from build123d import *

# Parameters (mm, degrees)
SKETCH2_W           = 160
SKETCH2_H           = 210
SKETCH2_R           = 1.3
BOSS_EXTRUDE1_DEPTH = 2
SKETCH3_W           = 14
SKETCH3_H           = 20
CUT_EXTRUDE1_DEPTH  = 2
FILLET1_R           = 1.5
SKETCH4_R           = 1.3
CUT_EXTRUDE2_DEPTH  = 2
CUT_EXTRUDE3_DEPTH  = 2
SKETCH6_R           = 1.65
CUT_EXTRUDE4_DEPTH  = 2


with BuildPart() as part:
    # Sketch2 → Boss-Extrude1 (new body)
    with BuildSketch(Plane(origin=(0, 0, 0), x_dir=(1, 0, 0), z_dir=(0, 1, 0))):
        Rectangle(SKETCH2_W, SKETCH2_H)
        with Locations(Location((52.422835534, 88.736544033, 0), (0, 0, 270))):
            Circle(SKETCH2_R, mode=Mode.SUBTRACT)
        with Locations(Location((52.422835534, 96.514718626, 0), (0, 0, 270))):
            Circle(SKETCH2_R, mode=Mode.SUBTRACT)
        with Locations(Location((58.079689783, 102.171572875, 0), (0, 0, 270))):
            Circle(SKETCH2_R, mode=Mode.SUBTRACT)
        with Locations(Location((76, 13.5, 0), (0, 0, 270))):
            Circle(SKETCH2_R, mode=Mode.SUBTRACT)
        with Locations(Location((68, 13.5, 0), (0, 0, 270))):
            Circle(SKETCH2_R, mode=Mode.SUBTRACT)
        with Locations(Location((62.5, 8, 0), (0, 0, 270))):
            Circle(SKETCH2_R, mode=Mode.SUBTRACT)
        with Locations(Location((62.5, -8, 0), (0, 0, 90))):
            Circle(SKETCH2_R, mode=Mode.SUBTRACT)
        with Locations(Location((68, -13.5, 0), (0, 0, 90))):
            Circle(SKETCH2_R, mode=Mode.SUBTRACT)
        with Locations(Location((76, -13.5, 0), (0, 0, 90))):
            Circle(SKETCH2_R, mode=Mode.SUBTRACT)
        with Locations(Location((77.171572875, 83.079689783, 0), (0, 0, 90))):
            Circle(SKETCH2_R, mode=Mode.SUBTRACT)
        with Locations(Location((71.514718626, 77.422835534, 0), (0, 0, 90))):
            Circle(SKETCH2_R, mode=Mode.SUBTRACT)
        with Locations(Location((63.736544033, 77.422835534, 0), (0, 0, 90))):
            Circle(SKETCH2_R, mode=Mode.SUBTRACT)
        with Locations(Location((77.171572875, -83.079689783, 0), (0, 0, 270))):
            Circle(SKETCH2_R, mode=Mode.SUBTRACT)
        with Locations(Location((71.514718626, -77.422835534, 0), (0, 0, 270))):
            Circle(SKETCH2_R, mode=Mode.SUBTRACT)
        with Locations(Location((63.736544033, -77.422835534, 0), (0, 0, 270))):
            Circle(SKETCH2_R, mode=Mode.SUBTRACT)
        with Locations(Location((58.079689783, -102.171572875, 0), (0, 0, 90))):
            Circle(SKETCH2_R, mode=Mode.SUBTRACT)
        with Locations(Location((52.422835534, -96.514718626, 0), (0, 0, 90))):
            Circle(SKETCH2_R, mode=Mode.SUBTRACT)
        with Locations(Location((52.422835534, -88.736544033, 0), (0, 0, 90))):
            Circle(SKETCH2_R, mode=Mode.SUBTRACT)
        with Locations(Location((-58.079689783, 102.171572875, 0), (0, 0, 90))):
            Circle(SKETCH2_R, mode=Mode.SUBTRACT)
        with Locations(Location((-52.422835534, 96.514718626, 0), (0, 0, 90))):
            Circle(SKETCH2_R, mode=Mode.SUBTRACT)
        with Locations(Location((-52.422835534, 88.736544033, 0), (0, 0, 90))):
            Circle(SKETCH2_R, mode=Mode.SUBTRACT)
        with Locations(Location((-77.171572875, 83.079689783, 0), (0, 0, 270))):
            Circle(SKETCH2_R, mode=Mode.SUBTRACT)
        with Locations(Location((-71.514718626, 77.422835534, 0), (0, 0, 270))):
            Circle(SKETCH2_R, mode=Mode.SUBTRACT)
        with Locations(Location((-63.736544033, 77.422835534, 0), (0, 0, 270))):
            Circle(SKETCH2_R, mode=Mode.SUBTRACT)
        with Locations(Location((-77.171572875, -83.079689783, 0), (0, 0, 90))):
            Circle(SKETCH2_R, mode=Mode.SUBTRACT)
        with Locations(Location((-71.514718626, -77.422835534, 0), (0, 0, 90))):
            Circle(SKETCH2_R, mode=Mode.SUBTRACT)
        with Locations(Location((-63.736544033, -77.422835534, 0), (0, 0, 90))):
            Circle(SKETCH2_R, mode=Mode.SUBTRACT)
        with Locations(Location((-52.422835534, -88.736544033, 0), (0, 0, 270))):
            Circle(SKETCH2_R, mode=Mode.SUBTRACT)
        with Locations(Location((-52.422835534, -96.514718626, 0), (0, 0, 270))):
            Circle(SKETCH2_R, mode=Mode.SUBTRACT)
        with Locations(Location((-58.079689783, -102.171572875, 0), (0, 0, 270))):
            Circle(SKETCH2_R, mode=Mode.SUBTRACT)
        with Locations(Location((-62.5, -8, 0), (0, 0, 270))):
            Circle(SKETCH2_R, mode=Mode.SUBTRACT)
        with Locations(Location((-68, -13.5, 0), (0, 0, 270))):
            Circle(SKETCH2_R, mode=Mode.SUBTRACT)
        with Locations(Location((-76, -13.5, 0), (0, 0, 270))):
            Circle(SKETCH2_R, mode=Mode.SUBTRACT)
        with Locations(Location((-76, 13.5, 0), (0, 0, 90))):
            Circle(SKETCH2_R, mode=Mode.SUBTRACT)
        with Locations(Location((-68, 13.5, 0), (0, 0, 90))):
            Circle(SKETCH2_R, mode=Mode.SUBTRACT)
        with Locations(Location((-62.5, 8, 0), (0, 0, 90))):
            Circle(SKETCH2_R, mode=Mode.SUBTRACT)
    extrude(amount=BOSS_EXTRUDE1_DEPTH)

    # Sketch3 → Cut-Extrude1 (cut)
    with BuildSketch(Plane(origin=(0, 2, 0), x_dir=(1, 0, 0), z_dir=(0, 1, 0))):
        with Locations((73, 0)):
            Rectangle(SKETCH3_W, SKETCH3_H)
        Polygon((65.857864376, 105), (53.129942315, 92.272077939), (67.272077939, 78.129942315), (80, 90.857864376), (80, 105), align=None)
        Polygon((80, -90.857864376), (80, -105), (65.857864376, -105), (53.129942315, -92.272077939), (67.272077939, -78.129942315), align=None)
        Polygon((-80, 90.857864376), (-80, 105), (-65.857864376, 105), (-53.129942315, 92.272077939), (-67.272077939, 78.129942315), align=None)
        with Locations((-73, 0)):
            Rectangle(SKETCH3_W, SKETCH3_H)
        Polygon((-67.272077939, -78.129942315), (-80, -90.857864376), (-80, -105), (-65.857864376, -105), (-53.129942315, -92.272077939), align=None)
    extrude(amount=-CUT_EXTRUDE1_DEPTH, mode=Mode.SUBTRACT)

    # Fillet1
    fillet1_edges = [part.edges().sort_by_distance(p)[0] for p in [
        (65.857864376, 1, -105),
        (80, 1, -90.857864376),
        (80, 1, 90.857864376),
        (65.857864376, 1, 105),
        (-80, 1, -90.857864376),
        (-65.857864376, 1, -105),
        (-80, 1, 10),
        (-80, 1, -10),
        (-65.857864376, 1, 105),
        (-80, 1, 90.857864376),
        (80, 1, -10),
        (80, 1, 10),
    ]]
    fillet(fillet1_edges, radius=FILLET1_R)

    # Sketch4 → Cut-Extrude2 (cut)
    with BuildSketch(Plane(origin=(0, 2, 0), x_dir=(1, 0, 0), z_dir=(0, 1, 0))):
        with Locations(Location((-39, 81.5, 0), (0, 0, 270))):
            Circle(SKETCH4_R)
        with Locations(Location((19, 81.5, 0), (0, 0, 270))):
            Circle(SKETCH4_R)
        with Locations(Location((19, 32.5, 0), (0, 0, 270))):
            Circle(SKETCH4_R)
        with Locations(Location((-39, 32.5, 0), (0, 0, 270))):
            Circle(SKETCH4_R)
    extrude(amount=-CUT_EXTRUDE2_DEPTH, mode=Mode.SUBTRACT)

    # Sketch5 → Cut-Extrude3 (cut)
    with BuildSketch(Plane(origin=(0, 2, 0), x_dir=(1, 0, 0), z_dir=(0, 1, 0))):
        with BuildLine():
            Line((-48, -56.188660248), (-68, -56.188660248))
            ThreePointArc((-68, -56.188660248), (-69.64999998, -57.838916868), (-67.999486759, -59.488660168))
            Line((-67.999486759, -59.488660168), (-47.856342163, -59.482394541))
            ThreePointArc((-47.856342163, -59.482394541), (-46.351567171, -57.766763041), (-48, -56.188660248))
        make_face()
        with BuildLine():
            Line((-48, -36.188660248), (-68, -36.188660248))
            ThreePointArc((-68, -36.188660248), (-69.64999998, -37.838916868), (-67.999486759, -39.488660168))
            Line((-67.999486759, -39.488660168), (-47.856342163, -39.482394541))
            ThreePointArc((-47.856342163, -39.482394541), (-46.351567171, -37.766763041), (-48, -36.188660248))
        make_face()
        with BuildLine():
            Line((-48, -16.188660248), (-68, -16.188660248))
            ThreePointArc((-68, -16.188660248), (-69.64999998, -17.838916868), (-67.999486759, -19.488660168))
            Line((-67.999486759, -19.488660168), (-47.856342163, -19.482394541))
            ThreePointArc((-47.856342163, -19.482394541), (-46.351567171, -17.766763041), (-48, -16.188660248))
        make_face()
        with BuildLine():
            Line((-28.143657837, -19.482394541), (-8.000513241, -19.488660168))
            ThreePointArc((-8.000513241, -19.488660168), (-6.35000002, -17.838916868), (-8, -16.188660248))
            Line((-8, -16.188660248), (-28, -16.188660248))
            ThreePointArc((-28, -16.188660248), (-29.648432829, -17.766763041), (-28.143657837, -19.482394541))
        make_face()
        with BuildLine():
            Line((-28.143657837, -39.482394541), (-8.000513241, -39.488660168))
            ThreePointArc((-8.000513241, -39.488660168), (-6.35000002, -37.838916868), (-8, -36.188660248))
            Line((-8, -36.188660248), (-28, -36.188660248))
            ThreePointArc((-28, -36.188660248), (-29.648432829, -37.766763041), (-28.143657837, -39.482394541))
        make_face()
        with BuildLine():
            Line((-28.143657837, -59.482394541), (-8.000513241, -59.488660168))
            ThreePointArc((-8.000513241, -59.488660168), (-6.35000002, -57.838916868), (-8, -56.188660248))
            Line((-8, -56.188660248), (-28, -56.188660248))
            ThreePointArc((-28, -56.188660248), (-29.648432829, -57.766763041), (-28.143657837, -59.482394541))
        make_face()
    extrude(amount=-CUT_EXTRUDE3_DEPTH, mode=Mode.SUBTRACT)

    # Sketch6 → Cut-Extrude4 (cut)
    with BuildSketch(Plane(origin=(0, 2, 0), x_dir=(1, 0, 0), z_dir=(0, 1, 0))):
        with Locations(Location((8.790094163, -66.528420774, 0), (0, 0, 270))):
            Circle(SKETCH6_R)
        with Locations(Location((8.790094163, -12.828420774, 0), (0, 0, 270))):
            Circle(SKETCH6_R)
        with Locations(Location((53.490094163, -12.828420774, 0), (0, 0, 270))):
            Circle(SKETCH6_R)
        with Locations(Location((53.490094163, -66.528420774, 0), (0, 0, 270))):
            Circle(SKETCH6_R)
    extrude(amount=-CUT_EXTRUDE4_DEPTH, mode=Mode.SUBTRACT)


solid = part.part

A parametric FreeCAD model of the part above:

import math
import FreeCAD as App
import Part
import Sketcher


def edges_at(feature, points):
    """Names of the edges that pass closest to the given points."""
    edges = feature.Shape.Edges
    near = lambda p: min(range(len(edges)), key=lambda i: edges[i].distToShape(Part.Vertex(*p))[0])
    return sorted({f"Edge{near(p) + 1}" for p in points})


def add_polygon(sketch, points):
    """Adds a closed chain of lines whose ends are joined by coincident constraints."""
    first, n = sketch.GeometryCount, len(points)
    for a, b in zip(points, points[1:] + points[:1]):
        sketch.addGeometry(Part.LineSegment(App.Vector(*a, 0), App.Vector(*b, 0)), False)
    for i in range(n):
        sketch.addConstraint(Sketcher.Constraint("Coincident", first + i, 2, first + (i + 1) % n, 1))

doc = App.newDocument("Part")
body = doc.addObject("PartDesign::Body", "Body")

sketch1 = body.newObject("Sketcher::SketchObject", "Sketch")
sketch1.AttachmentSupport = (doc.getObject("XZ_Plane"), [""])
sketch1.MapMode = "FlatFace"
add_polygon(sketch1, [(-80, -105), (-80, 105), (80, 105), (80, -105)])
sketch1.addGeometry(Part.Circle(App.Vector(-77.2, 83.1, 0), App.Vector(0, 0, 1), 1.3), False)
sketch1.addGeometry(Part.Circle(App.Vector(-58.1, 102.2, 0), App.Vector(0, 0, 1), 1.3), False)
sketch1.addGeometry(Part.Circle(App.Vector(-52.4, 96.5, 0), App.Vector(0, 0, 1), 1.3), False)
sketch1.addGeometry(Part.Circle(App.Vector(-52.4, 88.7, 0), App.Vector(0, 0, 1), 1.3), False)
sketch1.addGeometry(Part.Circle(App.Vector(-71.5, 77.4, 0), App.Vector(0, 0, 1), 1.3), False)
sketch1.addGeometry(Part.Circle(App.Vector(-63.7, 77.4, 0), App.Vector(0, 0, 1), 1.3), False)
sketch1.addGeometry(Part.Circle(App.Vector(-76, 13.5, 0), App.Vector(0, 0, 1), 1.3), False)
sketch1.addGeometry(Part.Circle(App.Vector(-68, 13.5, 0), App.Vector(0, 0, 1), 1.3), False)
sketch1.addGeometry(Part.Circle(App.Vector(-62.5, 8, 0), App.Vector(0, 0, 1), 1.3), False)
sketch1.addGeometry(Part.Circle(App.Vector(58.1, 102.2, 0), App.Vector(0, 0, 1), 1.3), False)
sketch1.addGeometry(Part.Circle(App.Vector(52.4, 96.5, 0), App.Vector(0, 0, 1), 1.3), False)
sketch1.addGeometry(Part.Circle(App.Vector(52.4, 88.7, 0), App.Vector(0, 0, 1), 1.3), False)
sketch1.addGeometry(Part.Circle(App.Vector(77.2, 83.1, 0), App.Vector(0, 0, 1), 1.3), False)
sketch1.addGeometry(Part.Circle(App.Vector(63.7, 77.4, 0), App.Vector(0, 0, 1), 1.3), False)
sketch1.addGeometry(Part.Circle(App.Vector(71.5, 77.4, 0), App.Vector(0, 0, 1), 1.3), False)
sketch1.addGeometry(Part.Circle(App.Vector(68, 13.5, 0), App.Vector(0, 0, 1), 1.3), False)
sketch1.addGeometry(Part.Circle(App.Vector(76, 13.5, 0), App.Vector(0, 0, 1), 1.3), False)
sketch1.addGeometry(Part.Circle(App.Vector(62.5, 8, 0), App.Vector(0, 0, 1), 1.3), False)
sketch1.addGeometry(Part.Circle(App.Vector(-62.5, -8, 0), App.Vector(0, 0, 1), 1.3), False)
sketch1.addGeometry(Part.Circle(App.Vector(-76, -13.5, 0), App.Vector(0, 0, 1), 1.3), False)
sketch1.addGeometry(Part.Circle(App.Vector(-68, -13.5, 0), App.Vector(0, 0, 1), 1.3), False)
sketch1.addGeometry(Part.Circle(App.Vector(-71.5, -77.4, 0), App.Vector(0, 0, 1), 1.3), False)
sketch1.addGeometry(Part.Circle(App.Vector(-63.7, -77.4, 0), App.Vector(0, 0, 1), 1.3), False)
sketch1.addGeometry(Part.Circle(App.Vector(-77.2, -83.1, 0), App.Vector(0, 0, 1), 1.3), False)
sketch1.addGeometry(Part.Circle(App.Vector(-52.4, -88.7, 0), App.Vector(0, 0, 1), 1.3), False)
sketch1.addGeometry(Part.Circle(App.Vector(-52.4, -96.5, 0), App.Vector(0, 0, 1), 1.3), False)
sketch1.addGeometry(Part.Circle(App.Vector(-58.1, -102.2, 0), App.Vector(0, 0, 1), 1.3), False)
sketch1.addGeometry(Part.Circle(App.Vector(62.5, -8, 0), App.Vector(0, 0, 1), 1.3), False)
sketch1.addGeometry(Part.Circle(App.Vector(68, -13.5, 0), App.Vector(0, 0, 1), 1.3), False)
sketch1.addGeometry(Part.Circle(App.Vector(76, -13.5, 0), App.Vector(0, 0, 1), 1.3), False)
sketch1.addGeometry(Part.Circle(App.Vector(63.7, -77.4, 0), App.Vector(0, 0, 1), 1.3), False)
sketch1.addGeometry(Part.Circle(App.Vector(71.5, -77.4, 0), App.Vector(0, 0, 1), 1.3), False)
sketch1.addGeometry(Part.Circle(App.Vector(52.4, -88.7, 0), App.Vector(0, 0, 1), 1.3), False)
sketch1.addGeometry(Part.Circle(App.Vector(52.4, -96.5, 0), App.Vector(0, 0, 1), 1.3), False)
sketch1.addGeometry(Part.Circle(App.Vector(58.1, -102.2, 0), App.Vector(0, 0, 1), 1.3), False)
sketch1.addGeometry(Part.Circle(App.Vector(77.2, -83.1, 0), App.Vector(0, 0, 1), 1.3), False)
sketch1.addConstraint(Sketcher.Constraint("Vertical", 0))
sketch1.addConstraint(Sketcher.Constraint("Horizontal", 1))
sketch1.addConstraint(Sketcher.Constraint("Vertical", 2))
sketch1.addConstraint(Sketcher.Constraint("Horizontal", 3))
sketch1.addConstraint(Sketcher.Constraint("Equal", 4, 5))
sketch1.addConstraint(Sketcher.Constraint("Equal", 5, 6))
sketch1.addConstraint(Sketcher.Constraint("Equal", 6, 7))
sketch1.addConstraint(Sketcher.Constraint("Equal", 7, 8))
sketch1.addConstraint(Sketcher.Constraint("Equal", 8, 9))
sketch1.addConstraint(Sketcher.Constraint("Equal", 9, 10))
sketch1.addConstraint(Sketcher.Constraint("Equal", 10, 11))
sketch1.addConstraint(Sketcher.Constraint("Equal", 11, 12))
sketch1.addConstraint(Sketcher.Constraint("Equal", 12, 13))
sketch1.addConstraint(Sketcher.Constraint("Equal", 13, 14))
sketch1.addConstraint(Sketcher.Constraint("Equal", 14, 15))
sketch1.addConstraint(Sketcher.Constraint("Equal", 15, 16))
sketch1.addConstraint(Sketcher.Constraint("Equal", 16, 17))
sketch1.addConstraint(Sketcher.Constraint("Equal", 17, 18))
sketch1.addConstraint(Sketcher.Constraint("Equal", 18, 19))
sketch1.addConstraint(Sketcher.Constraint("Equal", 19, 20))
sketch1.addConstraint(Sketcher.Constraint("Equal", 20, 21))
sketch1.addConstraint(Sketcher.Constraint("Equal", 21, 22))
sketch1.addConstraint(Sketcher.Constraint("Equal", 22, 23))
sketch1.addConstraint(Sketcher.Constraint("Equal", 23, 24))
sketch1.addConstraint(Sketcher.Constraint("Equal", 24, 25))
sketch1.addConstraint(Sketcher.Constraint("Equal", 25, 26))
sketch1.addConstraint(Sketcher.Constraint("Equal", 26, 27))
sketch1.addConstraint(Sketcher.Constraint("Equal", 27, 28))
sketch1.addConstraint(Sketcher.Constraint("Equal", 28, 29))
sketch1.addConstraint(Sketcher.Constraint("Equal", 29, 30))
sketch1.addConstraint(Sketcher.Constraint("Equal", 30, 31))
sketch1.addConstraint(Sketcher.Constraint("Equal", 31, 32))
sketch1.addConstraint(Sketcher.Constraint("Equal", 32, 33))
sketch1.addConstraint(Sketcher.Constraint("Equal", 33, 34))
sketch1.addConstraint(Sketcher.Constraint("Equal", 34, 35))
sketch1.addConstraint(Sketcher.Constraint("Equal", 35, 36))
sketch1.addConstraint(Sketcher.Constraint("Equal", 36, 37))
sketch1.addConstraint(Sketcher.Constraint("Equal", 37, 38))
sketch1.addConstraint(Sketcher.Constraint("Equal", 38, 39))
sketch1.addConstraint(Sketcher.Constraint("Symmetric", 21, 3, 22, 3, -1, 1))
sketch1.addConstraint(Sketcher.Constraint("Symmetric", 20, 3, 23, 3, -1, 1))
sketch1.addConstraint(Sketcher.Constraint("Symmetric", 19, 3, 24, 3, -1, 1))
sketch1.addConstraint(Sketcher.Constraint("Symmetric", 18, 3, 25, 3, -1, 1))
sketch1.addConstraint(Sketcher.Constraint("Symmetric", 17, 3, 26, 3, -1, 1))
sketch1.addConstraint(Sketcher.Constraint("Symmetric", 16, 3, 27, 3, -1, 1))
sketch1.addConstraint(Sketcher.Constraint("Symmetric", 15, 3, 28, 3, -1, 1))
sketch1.addConstraint(Sketcher.Constraint("Symmetric", 14, 3, 29, 3, -1, 1))
sketch1.addConstraint(Sketcher.Constraint("Symmetric", 13, 3, 30, 3, -1, 1))
sketch1.addConstraint(Sketcher.Constraint("Symmetric", 12, 3, 31, 3, -1, 1))
sketch1.addConstraint(Sketcher.Constraint("Symmetric", 11, 3, 32, 3, -1, 1))
sketch1.addConstraint(Sketcher.Constraint("Symmetric", 10, 3, 33, 3, -1, 1))
sketch1.addConstraint(Sketcher.Constraint("Symmetric", 9, 3, 34, 3, -1, 1))
sketch1.addConstraint(Sketcher.Constraint("Symmetric", 8, 3, 35, 3, -1, 1))
sketch1.addConstraint(Sketcher.Constraint("Symmetric", 7, 3, 36, 3, -1, 1))
sketch1.addConstraint(Sketcher.Constraint("Symmetric", 6, 3, 37, 3, -1, 1))
sketch1.addConstraint(Sketcher.Constraint("Symmetric", 5, 3, 38, 3, -1, 1))
sketch1.addConstraint(Sketcher.Constraint("Symmetric", 4, 3, 39, 3, -1, 1))
sketch1.addConstraint(Sketcher.Constraint("Symmetric", 0, 2, 2, 2, -1, 1))
sketch1.addConstraint(Sketcher.Constraint("Symmetric", 5, 3, 13, 3, -2))
sketch1.addConstraint(Sketcher.Constraint("Symmetric", 6, 3, 14, 3, -2))
sketch1.addConstraint(Sketcher.Constraint("Symmetric", 7, 3, 15, 3, -2))
sketch1.addConstraint(Sketcher.Constraint("Symmetric", 4, 3, 16, 3, -2))
sketch1.addConstraint(Sketcher.Constraint("Symmetric", 9, 3, 17, 3, -2))
sketch1.addConstraint(Sketcher.Constraint("Symmetric", 8, 3, 18, 3, -2))
sketch1.addConstraint(Sketcher.Constraint("Symmetric", 11, 3, 19, 3, -2))
sketch1.addConstraint(Sketcher.Constraint("Symmetric", 10, 3, 20, 3, -2))
sketch1.addConstraint(Sketcher.Constraint("Symmetric", 12, 3, 21, 3, -2))
sketch1.addConstraint(Sketcher.Constraint("Horizontal", 8, 3, 9, 3))
sketch1.addConstraint(Sketcher.Constraint("Horizontal", 10, 3, 11, 3))
sketch1.addConstraint(Sketcher.Constraint("Vertical", 6, 3, 7, 3))
sketch1.addConstraint(Sketcher.Constraint("Diameter", 4, 2.6))
sketch1.addConstraint(Sketcher.Constraint("DistanceX", 1, 1, 1, 2, 160.0))
sketch1.addConstraint(Sketcher.Constraint("DistanceY", 0, 1, 0, 2, 210.0))
sketch1.addConstraint(Sketcher.Constraint("DistanceX", 10, 3, -1, 1, 76.0))
sketch1.addConstraint(Sketcher.Constraint("DistanceX", 11, 3, -1, 1, 68.0))
sketch1.addConstraint(Sketcher.Constraint("DistanceY", -1, 1, 12, 3, 8.0))
sketch1.addConstraint(Sketcher.Constraint("DistanceY", 23, 3, 10, 3, 27.0))
sketch1.addConstraint(Sketcher.Constraint("DistanceX", 12, 3, -1, 1, 62.5))
sketch1.addConstraint(Sketcher.Constraint("DistanceY", -1, 1, 4, 3, 83.07969))
sketch1.addConstraint(Sketcher.Constraint("DistanceX", 5, 3, -1, 1, 58.07969))
sketch1.addConstraint(Sketcher.Constraint("DistanceY", -1, 1, 6, 3, 96.514719))
sketch1.addConstraint(Sketcher.Constraint("DistanceX", 8, 3, -1, 1, 71.514719))
sketch1.addConstraint(Sketcher.Constraint("DistanceY", 7, 3, 5, 3, 13.435029))
sketch1.addConstraint(Sketcher.Constraint("DistanceY", 8, 3, 7, 3, 11.313708))
sketch1.addConstraint(Sketcher.Constraint("DistanceX", 4, 3, 9, 3, 13.435029))
sketch1.addConstraint(Sketcher.Constraint("DistanceX", 9, 3, 7, 3, 11.313708))
sketch1.addConstraint(Sketcher.Constraint("DistanceX", 6, 3, 14, 3, 104.845671))
sketch1.addConstraint(Sketcher.Constraint("DistanceY", -1, 1, 5, 3, 102.171573))
pad1 = body.newObject("PartDesign::Pad", "Pad")
pad1.Profile = sketch1
pad1.Length = 2
pad1.Reversed = True

sketch2 = body.newObject("Sketcher::SketchObject", "Sketch001")
sketch2.AttachmentSupport = (doc.getObject("XZ_Plane"), [""])
sketch2.MapMode = "FlatFace"
sketch2.AttachmentOffset = App.Placement(App.Vector(0, 0, -2), App.Rotation())
add_polygon(sketch2, [(66, -10), (66, 10), (80, 10), (80, -10)])
add_polygon(sketch2, [(66, -105), (53, -92), (67, -78), (80, -91), (80, -105)])
add_polygon(sketch2, [(80, 105), (80, 91), (67, 78), (53, 92), (66, 105)])
add_polygon(sketch2, [(-80, -105), (-80, -91), (-67, -78), (-53, -92), (-66, -105)])
add_polygon(sketch2, [(-80, -10), (-80, 10), (-66, 10), (-66, -10)])
add_polygon(sketch2, [(-67, 78), (-80, 91), (-80, 105), (-66, 105), (-53, 92)])
sketch2.addConstraint(Sketcher.Constraint("Vertical", 0))
sketch2.addConstraint(Sketcher.Constraint("Horizontal", 1))
sketch2.addConstraint(Sketcher.Constraint("Vertical", 2))
sketch2.addConstraint(Sketcher.Constraint("Horizontal", 3))
sketch2.addConstraint(Sketcher.Constraint("Vertical", 7))
sketch2.addConstraint(Sketcher.Constraint("Horizontal", 8))
sketch2.addConstraint(Sketcher.Constraint("Vertical", 9))
sketch2.addConstraint(Sketcher.Constraint("Horizontal", 13))
sketch2.addConstraint(Sketcher.Constraint("Vertical", 14))
sketch2.addConstraint(Sketcher.Constraint("Horizontal", 18))
sketch2.addConstraint(Sketcher.Constraint("Vertical", 19))
sketch2.addConstraint(Sketcher.Constraint("Horizontal", 20))
sketch2.addConstraint(Sketcher.Constraint("Vertical", 21))
sketch2.addConstraint(Sketcher.Constraint("Horizontal", 22))
sketch2.addConstraint(Sketcher.Constraint("Vertical", 24))
sketch2.addConstraint(Sketcher.Constraint("Horizontal", 25))
sketch2.addConstraint(Sketcher.Constraint("Symmetric", 9, 2, 14, 2, -1, 1))
sketch2.addConstraint(Sketcher.Constraint("Symmetric", 10, 2, 15, 2, -1, 1))
sketch2.addConstraint(Sketcher.Constraint("Symmetric", 11, 2, 16, 2, -1, 1))
sketch2.addConstraint(Sketcher.Constraint("Symmetric", 12, 2, 17, 2, -1, 1))
sketch2.addConstraint(Sketcher.Constraint("Symmetric", 2, 2, 19, 2, -1, 1))
sketch2.addConstraint(Sketcher.Constraint("Symmetric", 0, 2, 21, 2, -1, 1))
sketch2.addConstraint(Sketcher.Constraint("Symmetric", 6, 2, 23, 2, -1, 1))
sketch2.addConstraint(Sketcher.Constraint("Symmetric", 8, 2, 25, 2, -1, 1))
sketch2.addConstraint(Sketcher.Constraint("Symmetric", 4, 2, 26, 2, -1, 1))
sketch2.addConstraint(Sketcher.Constraint("Symmetric", 5, 2, 27, 2, -1, 1))
sketch2.addConstraint(Sketcher.Constraint("Symmetric", 6, 2, 14, 2, -2))
sketch2.addConstraint(Sketcher.Constraint("Symmetric", 5, 2, 15, 2, -2))
sketch2.addConstraint(Sketcher.Constraint("Symmetric", 4, 2, 16, 2, -2))
sketch2.addConstraint(Sketcher.Constraint("Symmetric", 8, 2, 17, 2, -2))
sketch2.addConstraint(Sketcher.Constraint("Perpendicular", 4, 5))
sketch2.addConstraint(Sketcher.Constraint("Perpendicular", 5, 6))
sketch2.addConstraint(Sketcher.Constraint("Perpendicular", 6, 10))
sketch2.addConstraint(Sketcher.Constraint("Horizontal", 1, 2, 19, 2))
sketch2.addConstraint(Sketcher.Constraint("Vertical", 2, 2, 6, 2))
sketch2.addConstraint(Sketcher.Constraint("Equal", 25, 7))
sketch2.addConstraint(Sketcher.Constraint("DistanceX", 1, 1, 1, 2, 14.0))
sketch2.addConstraint(Sketcher.Constraint("DistanceY", 0, 1, 0, 2, 20.0))
sketch2.addConstraint(Sketcher.Constraint("Distance", 4, 18.0))
sketch2.addConstraint(Sketcher.Constraint("Distance", 5, 20.0))
sketch2.addConstraint(Sketcher.Constraint("DistanceX", -1, 1, 0, 2, 66.0))
sketch2.addConstraint(Sketcher.Constraint("DistanceY", 7, 2, -1, 1, 105.0))
pocket1 = body.newObject("PartDesign::Pocket", "Pocket")
pocket1.Profile = sketch2
pocket1.Length = 2
pocket1.Reversed = True
doc.recompute()

fillet = body.newObject("PartDesign::Fillet", "Fillet")
fillet.Base = (pocket1, edges_at(pocket1, [
    (65.858, 1, -105),
    (80, 1, -90.858),
    (80, 1, 90.858),
    (65.858, 1, 105),
    (-80, 1, -90.858),
    (-65.858, 1, -105),
    (-80, 1, 10),
    (-80, 1, -10),
    (-65.858, 1, 105),
    (-80, 1, 90.858),
    (80, 1, -10),
    (80, 1, 10),
]))
fillet.Radius = 1.5

sketch3 = body.newObject("Sketcher::SketchObject", "Sketch002")
sketch3.AttachmentSupport = (doc.getObject("XZ_Plane"), [""])
sketch3.MapMode = "FlatFace"
sketch3.AttachmentOffset = App.Placement(App.Vector(0, 0, -2), App.Rotation())
sketch3.addGeometry(Part.Circle(App.Vector(-39, -81.5, 0), App.Vector(0, 0, 1), 1.3), False)
sketch3.addGeometry(Part.Circle(App.Vector(19, -81.5, 0), App.Vector(0, 0, 1), 1.3), False)
sketch3.addGeometry(Part.Circle(App.Vector(19, -32.5, 0), App.Vector(0, 0, 1), 1.3), False)
sketch3.addGeometry(Part.Circle(App.Vector(-39, -32.5, 0), App.Vector(0, 0, 1), 1.3), False)
sketch3.addConstraint(Sketcher.Constraint("Equal", 0, 1))
sketch3.addConstraint(Sketcher.Constraint("Equal", 1, 2))
sketch3.addConstraint(Sketcher.Constraint("Equal", 2, 3))
sketch3.addConstraint(Sketcher.Constraint("Horizontal", 0, 3, 1, 3))
sketch3.addConstraint(Sketcher.Constraint("Horizontal", 2, 3, 3, 3))
sketch3.addConstraint(Sketcher.Constraint("Vertical", 1, 3, 2, 3))
sketch3.addConstraint(Sketcher.Constraint("Vertical", 0, 3, 3, 3))
sketch3.addConstraint(Sketcher.Constraint("Diameter", 0, 2.6))
sketch3.addConstraint(Sketcher.Constraint("DistanceX", 0, 3, -1, 1, 39.0))
sketch3.addConstraint(Sketcher.Constraint("DistanceX", -1, 1, 1, 3, 19.0))
sketch3.addConstraint(Sketcher.Constraint("DistanceY", 1, 3, 2, 3, 49.0))
sketch3.addConstraint(Sketcher.Constraint("DistanceY", 0, 3, -1, 1, 81.5))
pocket2 = body.newObject("PartDesign::Pocket", "Pocket001")
pocket2.Profile = sketch3
pocket2.Length = 2
pocket2.Reversed = True

sketch4 = body.newObject("Sketcher::SketchObject", "Sketch003")
sketch4.AttachmentSupport = (doc.getObject("XZ_Plane"), [""])
sketch4.MapMode = "FlatFace"
sketch4.AttachmentOffset = App.Placement(App.Vector(0, 0, -2), App.Rotation())
sketch4.addGeometry(Part.LineSegment(App.Vector(-48, 56.2, 0), App.Vector(-68, 56.2, 0)), False)
sketch4.addGeometry(Part.ArcOfCircle(Part.Circle(App.Vector(-68, 57.8, 0), App.Vector(0, 0, 1), 1.6), math.radians(90), math.radians(270)), False)
sketch4.addGeometry(Part.LineSegment(App.Vector(-68, 59.5, 0), App.Vector(-47.9, 59.5, 0)), False)
sketch4.addGeometry(Part.ArcOfCircle(Part.Circle(App.Vector(-48, 57.8, 0), App.Vector(0, 0, 1), 1.6), math.radians(-90), math.radians(85)), False)
sketch4.addGeometry(Part.LineSegment(App.Vector(-48, 36.2, 0), App.Vector(-68, 36.2, 0)), False)
sketch4.addGeometry(Part.ArcOfCircle(Part.Circle(App.Vector(-68, 37.8, 0), App.Vector(0, 0, 1), 1.6), math.radians(90), math.radians(270)), False)
sketch4.addGeometry(Part.LineSegment(App.Vector(-68, 39.5, 0), App.Vector(-47.9, 39.5, 0)), False)
sketch4.addGeometry(Part.ArcOfCircle(Part.Circle(App.Vector(-48, 37.8, 0), App.Vector(0, 0, 1), 1.6), math.radians(-90), math.radians(85)), False)
sketch4.addGeometry(Part.LineSegment(App.Vector(-48, 16.2, 0), App.Vector(-68, 16.2, 0)), False)
sketch4.addGeometry(Part.ArcOfCircle(Part.Circle(App.Vector(-68, 17.8, 0), App.Vector(0, 0, 1), 1.6), math.radians(90), math.radians(270)), False)
sketch4.addGeometry(Part.LineSegment(App.Vector(-68, 19.5, 0), App.Vector(-47.9, 19.5, 0)), False)
sketch4.addGeometry(Part.ArcOfCircle(Part.Circle(App.Vector(-48, 17.8, 0), App.Vector(0, 0, 1), 1.6), math.radians(-90), math.radians(85)), False)
sketch4.addGeometry(Part.LineSegment(App.Vector(-28.1, 19.5, 0), App.Vector(-8, 19.5, 0)), False)
sketch4.addGeometry(Part.ArcOfCircle(Part.Circle(App.Vector(-8, 17.8, 0), App.Vector(0, 0, 1), 1.6), math.radians(-90), math.radians(90)), False)
sketch4.addGeometry(Part.LineSegment(App.Vector(-8, 16.2, 0), App.Vector(-28, 16.2, 0)), False)
sketch4.addGeometry(Part.ArcOfCircle(Part.Circle(App.Vector(-28, 17.8, 0), App.Vector(0, 0, 1), 1.6), math.radians(95), math.radians(270)), False)
sketch4.addGeometry(Part.LineSegment(App.Vector(-28.1, 39.5, 0), App.Vector(-8, 39.5, 0)), False)
sketch4.addGeometry(Part.ArcOfCircle(Part.Circle(App.Vector(-8, 37.8, 0), App.Vector(0, 0, 1), 1.6), math.radians(-90), math.radians(90)), False)
sketch4.addGeometry(Part.LineSegment(App.Vector(-8, 36.2, 0), App.Vector(-28, 36.2, 0)), False)
sketch4.addGeometry(Part.ArcOfCircle(Part.Circle(App.Vector(-28, 37.8, 0), App.Vector(0, 0, 1), 1.6), math.radians(95), math.radians(270)), False)
sketch4.addGeometry(Part.LineSegment(App.Vector(-28.1, 59.5, 0), App.Vector(-8, 59.5, 0)), False)
sketch4.addGeometry(Part.ArcOfCircle(Part.Circle(App.Vector(-8, 57.8, 0), App.Vector(0, 0, 1), 1.6), math.radians(-90), math.radians(90)), False)
sketch4.addGeometry(Part.LineSegment(App.Vector(-8, 56.2, 0), App.Vector(-28, 56.2, 0)), False)
sketch4.addGeometry(Part.ArcOfCircle(Part.Circle(App.Vector(-28, 57.8, 0), App.Vector(0, 0, 1), 1.6), math.radians(95), math.radians(270)), False)
sketch4.addConstraint(Sketcher.Constraint("Tangent", 0, 2, 1, 2))
sketch4.addConstraint(Sketcher.Constraint("Tangent", 1, 1, 2, 1))
sketch4.addConstraint(Sketcher.Constraint("Coincident", 2, 2, 3, 2))
sketch4.addConstraint(Sketcher.Constraint("Tangent", 3, 1, 0, 1))
sketch4.addConstraint(Sketcher.Constraint("Tangent", 4, 2, 5, 2))
sketch4.addConstraint(Sketcher.Constraint("Tangent", 5, 1, 6, 1))
sketch4.addConstraint(Sketcher.Constraint("Coincident", 6, 2, 7, 2))
sketch4.addConstraint(Sketcher.Constraint("Tangent", 7, 1, 4, 1))
sketch4.addConstraint(Sketcher.Constraint("Tangent", 8, 2, 9, 2))
sketch4.addConstraint(Sketcher.Constraint("Tangent", 9, 1, 10, 1))
sketch4.addConstraint(Sketcher.Constraint("Coincident", 10, 2, 11, 2))
sketch4.addConstraint(Sketcher.Constraint("Tangent", 11, 1, 8, 1))
sketch4.addConstraint(Sketcher.Constraint("Tangent", 12, 2, 13, 2))
sketch4.addConstraint(Sketcher.Constraint("Tangent", 13, 1, 14, 1))
sketch4.addConstraint(Sketcher.Constraint("Tangent", 14, 2, 15, 2))
sketch4.addConstraint(Sketcher.Constraint("Coincident", 15, 1, 12, 1))
sketch4.addConstraint(Sketcher.Constraint("Tangent", 16, 2, 17, 2))
sketch4.addConstraint(Sketcher.Constraint("Tangent", 17, 1, 18, 1))
sketch4.addConstraint(Sketcher.Constraint("Tangent", 18, 2, 19, 2))
sketch4.addConstraint(Sketcher.Constraint("Coincident", 19, 1, 16, 1))
sketch4.addConstraint(Sketcher.Constraint("Tangent", 20, 2, 21, 2))
sketch4.addConstraint(Sketcher.Constraint("Tangent", 21, 1, 22, 1))
sketch4.addConstraint(Sketcher.Constraint("Tangent", 22, 2, 23, 2))
sketch4.addConstraint(Sketcher.Constraint("Coincident", 23, 1, 20, 1))
sketch4.addConstraint(Sketcher.Constraint("Horizontal", 0))
sketch4.addConstraint(Sketcher.Constraint("Horizontal", 4))
sketch4.addConstraint(Sketcher.Constraint("Horizontal", 8))
sketch4.addConstraint(Sketcher.Constraint("Horizontal", 14))
sketch4.addConstraint(Sketcher.Constraint("Horizontal", 18))
sketch4.addConstraint(Sketcher.Constraint("Horizontal", 22))
sketch4.addConstraint(Sketcher.Constraint("Equal", 1, 3))
sketch4.addConstraint(Sketcher.Constraint("Equal", 3, 5))
sketch4.addConstraint(Sketcher.Constraint("Equal", 5, 7))
sketch4.addConstraint(Sketcher.Constraint("Equal", 7, 9))
sketch4.addConstraint(Sketcher.Constraint("Equal", 9, 11))
sketch4.addConstraint(Sketcher.Constraint("Equal", 11, 13))
sketch4.addConstraint(Sketcher.Constraint("Equal", 13, 15))
sketch4.addConstraint(Sketcher.Constraint("Equal", 15, 17))
sketch4.addConstraint(Sketcher.Constraint("Equal", 17, 19))
sketch4.addConstraint(Sketcher.Constraint("Equal", 19, 21))
sketch4.addConstraint(Sketcher.Constraint("Equal", 21, 23))
sketch4.addConstraint(Sketcher.Constraint("Parallel", 2, 6))
sketch4.addConstraint(Sketcher.Constraint("Parallel", 6, 10))
sketch4.addConstraint(Sketcher.Constraint("Parallel", 12, 16))
sketch4.addConstraint(Sketcher.Constraint("Parallel", 16, 20))
sketch4.addConstraint(Sketcher.Constraint("Horizontal", 11, 3, 13, 3))
sketch4.addConstraint(Sketcher.Constraint("Horizontal", 7, 3, 17, 3))
sketch4.addConstraint(Sketcher.Constraint("Horizontal", 3, 3, 21, 3))
sketch4.addConstraint(Sketcher.Constraint("Horizontal", 10, 2, 15, 1))
sketch4.addConstraint(Sketcher.Constraint("Vertical", 1, 3, 5, 3))
sketch4.addConstraint(Sketcher.Constraint("Vertical", 3, 3, 7, 3))
sketch4.addConstraint(Sketcher.Constraint("Vertical", 5, 3, 9, 3))
sketch4.addConstraint(Sketcher.Constraint("Vertical", 7, 3, 11, 3))
sketch4.addConstraint(Sketcher.Constraint("Vertical", 13, 3, 17, 3))
sketch4.addConstraint(Sketcher.Constraint("Vertical", 15, 3, 19, 3))
sketch4.addConstraint(Sketcher.Constraint("Vertical", 17, 3, 21, 3))
sketch4.addConstraint(Sketcher.Constraint("Vertical", 19, 3, 23, 3))
sketch4.addConstraint(Sketcher.Constraint("Equal", 8, 14))
sketch4.addConstraint(Sketcher.Constraint("DistanceX", 0, 2, 0, 1, 20.0))
sketch4.addConstraint(Sketcher.Constraint("Radius", 1, 1.65))
sketch4.addConstraint(Sketcher.Constraint("DistanceX", 1, 3, -1, 1, 68.0))
sketch4.addConstraint(Sketcher.Constraint("DistanceX", 13, 3, -1, 1, 8.0))
sketch4.addConstraint(Sketcher.Constraint("DistanceY", 5, 3, 1, 3, 20.0))
sketch4.addConstraint(Sketcher.Constraint("DistanceY", 9, 3, 5, 3, 20.0))
sketch4.addConstraint(Sketcher.Constraint("DistanceY", -1, 1, 1, 3, 57.83866))
sketch4.addConstraint(Sketcher.Constraint("Distance", 2, 20.143146))
pocket3 = body.newObject("PartDesign::Pocket", "Pocket002")
pocket3.Profile = sketch4
pocket3.Length = 2
pocket3.Reversed = True

sketch5 = body.newObject("Sketcher::SketchObject", "Sketch004")
sketch5.AttachmentSupport = (doc.getObject("XZ_Plane"), [""])
sketch5.MapMode = "FlatFace"
sketch5.AttachmentOffset = App.Placement(App.Vector(0, 0, -2), App.Rotation())
sketch5.addGeometry(Part.Circle(App.Vector(8.8, 66.5, 0), App.Vector(0, 0, 1), 1.6), False)
sketch5.addGeometry(Part.Circle(App.Vector(8.8, 12.8, 0), App.Vector(0, 0, 1), 1.6), False)
sketch5.addGeometry(Part.Circle(App.Vector(53.5, 12.8, 0), App.Vector(0, 0, 1), 1.6), False)
sketch5.addGeometry(Part.Circle(App.Vector(53.5, 66.5, 0), App.Vector(0, 0, 1), 1.6), False)
sketch5.addConstraint(Sketcher.Constraint("Equal", 0, 1))
sketch5.addConstraint(Sketcher.Constraint("Equal", 1, 2))
sketch5.addConstraint(Sketcher.Constraint("Equal", 2, 3))
sketch5.addConstraint(Sketcher.Constraint("Horizontal", 1, 3, 2, 3))
sketch5.addConstraint(Sketcher.Constraint("Horizontal", 0, 3, 3, 3))
sketch5.addConstraint(Sketcher.Constraint("Vertical", 0, 3, 1, 3))
sketch5.addConstraint(Sketcher.Constraint("Vertical", 2, 3, 3, 3))
sketch5.addConstraint(Sketcher.Constraint("Diameter", 0, 3.3))
sketch5.addConstraint(Sketcher.Constraint("DistanceY", 1, 3, 0, 3, 53.7))
sketch5.addConstraint(Sketcher.Constraint("DistanceX", 1, 3, 2, 3, 44.7))
sketch5.addConstraint(Sketcher.Constraint("DistanceY", -1, 1, 0, 3, 66.528421))
sketch5.addConstraint(Sketcher.Constraint("DistanceX", -1, 1, 0, 3, 8.790094))
pocket4 = body.newObject("PartDesign::Pocket", "Pocket003")
pocket4.Profile = sketch5
pocket4.Length = 2
pocket4.Reversed = True

doc.recompute()
